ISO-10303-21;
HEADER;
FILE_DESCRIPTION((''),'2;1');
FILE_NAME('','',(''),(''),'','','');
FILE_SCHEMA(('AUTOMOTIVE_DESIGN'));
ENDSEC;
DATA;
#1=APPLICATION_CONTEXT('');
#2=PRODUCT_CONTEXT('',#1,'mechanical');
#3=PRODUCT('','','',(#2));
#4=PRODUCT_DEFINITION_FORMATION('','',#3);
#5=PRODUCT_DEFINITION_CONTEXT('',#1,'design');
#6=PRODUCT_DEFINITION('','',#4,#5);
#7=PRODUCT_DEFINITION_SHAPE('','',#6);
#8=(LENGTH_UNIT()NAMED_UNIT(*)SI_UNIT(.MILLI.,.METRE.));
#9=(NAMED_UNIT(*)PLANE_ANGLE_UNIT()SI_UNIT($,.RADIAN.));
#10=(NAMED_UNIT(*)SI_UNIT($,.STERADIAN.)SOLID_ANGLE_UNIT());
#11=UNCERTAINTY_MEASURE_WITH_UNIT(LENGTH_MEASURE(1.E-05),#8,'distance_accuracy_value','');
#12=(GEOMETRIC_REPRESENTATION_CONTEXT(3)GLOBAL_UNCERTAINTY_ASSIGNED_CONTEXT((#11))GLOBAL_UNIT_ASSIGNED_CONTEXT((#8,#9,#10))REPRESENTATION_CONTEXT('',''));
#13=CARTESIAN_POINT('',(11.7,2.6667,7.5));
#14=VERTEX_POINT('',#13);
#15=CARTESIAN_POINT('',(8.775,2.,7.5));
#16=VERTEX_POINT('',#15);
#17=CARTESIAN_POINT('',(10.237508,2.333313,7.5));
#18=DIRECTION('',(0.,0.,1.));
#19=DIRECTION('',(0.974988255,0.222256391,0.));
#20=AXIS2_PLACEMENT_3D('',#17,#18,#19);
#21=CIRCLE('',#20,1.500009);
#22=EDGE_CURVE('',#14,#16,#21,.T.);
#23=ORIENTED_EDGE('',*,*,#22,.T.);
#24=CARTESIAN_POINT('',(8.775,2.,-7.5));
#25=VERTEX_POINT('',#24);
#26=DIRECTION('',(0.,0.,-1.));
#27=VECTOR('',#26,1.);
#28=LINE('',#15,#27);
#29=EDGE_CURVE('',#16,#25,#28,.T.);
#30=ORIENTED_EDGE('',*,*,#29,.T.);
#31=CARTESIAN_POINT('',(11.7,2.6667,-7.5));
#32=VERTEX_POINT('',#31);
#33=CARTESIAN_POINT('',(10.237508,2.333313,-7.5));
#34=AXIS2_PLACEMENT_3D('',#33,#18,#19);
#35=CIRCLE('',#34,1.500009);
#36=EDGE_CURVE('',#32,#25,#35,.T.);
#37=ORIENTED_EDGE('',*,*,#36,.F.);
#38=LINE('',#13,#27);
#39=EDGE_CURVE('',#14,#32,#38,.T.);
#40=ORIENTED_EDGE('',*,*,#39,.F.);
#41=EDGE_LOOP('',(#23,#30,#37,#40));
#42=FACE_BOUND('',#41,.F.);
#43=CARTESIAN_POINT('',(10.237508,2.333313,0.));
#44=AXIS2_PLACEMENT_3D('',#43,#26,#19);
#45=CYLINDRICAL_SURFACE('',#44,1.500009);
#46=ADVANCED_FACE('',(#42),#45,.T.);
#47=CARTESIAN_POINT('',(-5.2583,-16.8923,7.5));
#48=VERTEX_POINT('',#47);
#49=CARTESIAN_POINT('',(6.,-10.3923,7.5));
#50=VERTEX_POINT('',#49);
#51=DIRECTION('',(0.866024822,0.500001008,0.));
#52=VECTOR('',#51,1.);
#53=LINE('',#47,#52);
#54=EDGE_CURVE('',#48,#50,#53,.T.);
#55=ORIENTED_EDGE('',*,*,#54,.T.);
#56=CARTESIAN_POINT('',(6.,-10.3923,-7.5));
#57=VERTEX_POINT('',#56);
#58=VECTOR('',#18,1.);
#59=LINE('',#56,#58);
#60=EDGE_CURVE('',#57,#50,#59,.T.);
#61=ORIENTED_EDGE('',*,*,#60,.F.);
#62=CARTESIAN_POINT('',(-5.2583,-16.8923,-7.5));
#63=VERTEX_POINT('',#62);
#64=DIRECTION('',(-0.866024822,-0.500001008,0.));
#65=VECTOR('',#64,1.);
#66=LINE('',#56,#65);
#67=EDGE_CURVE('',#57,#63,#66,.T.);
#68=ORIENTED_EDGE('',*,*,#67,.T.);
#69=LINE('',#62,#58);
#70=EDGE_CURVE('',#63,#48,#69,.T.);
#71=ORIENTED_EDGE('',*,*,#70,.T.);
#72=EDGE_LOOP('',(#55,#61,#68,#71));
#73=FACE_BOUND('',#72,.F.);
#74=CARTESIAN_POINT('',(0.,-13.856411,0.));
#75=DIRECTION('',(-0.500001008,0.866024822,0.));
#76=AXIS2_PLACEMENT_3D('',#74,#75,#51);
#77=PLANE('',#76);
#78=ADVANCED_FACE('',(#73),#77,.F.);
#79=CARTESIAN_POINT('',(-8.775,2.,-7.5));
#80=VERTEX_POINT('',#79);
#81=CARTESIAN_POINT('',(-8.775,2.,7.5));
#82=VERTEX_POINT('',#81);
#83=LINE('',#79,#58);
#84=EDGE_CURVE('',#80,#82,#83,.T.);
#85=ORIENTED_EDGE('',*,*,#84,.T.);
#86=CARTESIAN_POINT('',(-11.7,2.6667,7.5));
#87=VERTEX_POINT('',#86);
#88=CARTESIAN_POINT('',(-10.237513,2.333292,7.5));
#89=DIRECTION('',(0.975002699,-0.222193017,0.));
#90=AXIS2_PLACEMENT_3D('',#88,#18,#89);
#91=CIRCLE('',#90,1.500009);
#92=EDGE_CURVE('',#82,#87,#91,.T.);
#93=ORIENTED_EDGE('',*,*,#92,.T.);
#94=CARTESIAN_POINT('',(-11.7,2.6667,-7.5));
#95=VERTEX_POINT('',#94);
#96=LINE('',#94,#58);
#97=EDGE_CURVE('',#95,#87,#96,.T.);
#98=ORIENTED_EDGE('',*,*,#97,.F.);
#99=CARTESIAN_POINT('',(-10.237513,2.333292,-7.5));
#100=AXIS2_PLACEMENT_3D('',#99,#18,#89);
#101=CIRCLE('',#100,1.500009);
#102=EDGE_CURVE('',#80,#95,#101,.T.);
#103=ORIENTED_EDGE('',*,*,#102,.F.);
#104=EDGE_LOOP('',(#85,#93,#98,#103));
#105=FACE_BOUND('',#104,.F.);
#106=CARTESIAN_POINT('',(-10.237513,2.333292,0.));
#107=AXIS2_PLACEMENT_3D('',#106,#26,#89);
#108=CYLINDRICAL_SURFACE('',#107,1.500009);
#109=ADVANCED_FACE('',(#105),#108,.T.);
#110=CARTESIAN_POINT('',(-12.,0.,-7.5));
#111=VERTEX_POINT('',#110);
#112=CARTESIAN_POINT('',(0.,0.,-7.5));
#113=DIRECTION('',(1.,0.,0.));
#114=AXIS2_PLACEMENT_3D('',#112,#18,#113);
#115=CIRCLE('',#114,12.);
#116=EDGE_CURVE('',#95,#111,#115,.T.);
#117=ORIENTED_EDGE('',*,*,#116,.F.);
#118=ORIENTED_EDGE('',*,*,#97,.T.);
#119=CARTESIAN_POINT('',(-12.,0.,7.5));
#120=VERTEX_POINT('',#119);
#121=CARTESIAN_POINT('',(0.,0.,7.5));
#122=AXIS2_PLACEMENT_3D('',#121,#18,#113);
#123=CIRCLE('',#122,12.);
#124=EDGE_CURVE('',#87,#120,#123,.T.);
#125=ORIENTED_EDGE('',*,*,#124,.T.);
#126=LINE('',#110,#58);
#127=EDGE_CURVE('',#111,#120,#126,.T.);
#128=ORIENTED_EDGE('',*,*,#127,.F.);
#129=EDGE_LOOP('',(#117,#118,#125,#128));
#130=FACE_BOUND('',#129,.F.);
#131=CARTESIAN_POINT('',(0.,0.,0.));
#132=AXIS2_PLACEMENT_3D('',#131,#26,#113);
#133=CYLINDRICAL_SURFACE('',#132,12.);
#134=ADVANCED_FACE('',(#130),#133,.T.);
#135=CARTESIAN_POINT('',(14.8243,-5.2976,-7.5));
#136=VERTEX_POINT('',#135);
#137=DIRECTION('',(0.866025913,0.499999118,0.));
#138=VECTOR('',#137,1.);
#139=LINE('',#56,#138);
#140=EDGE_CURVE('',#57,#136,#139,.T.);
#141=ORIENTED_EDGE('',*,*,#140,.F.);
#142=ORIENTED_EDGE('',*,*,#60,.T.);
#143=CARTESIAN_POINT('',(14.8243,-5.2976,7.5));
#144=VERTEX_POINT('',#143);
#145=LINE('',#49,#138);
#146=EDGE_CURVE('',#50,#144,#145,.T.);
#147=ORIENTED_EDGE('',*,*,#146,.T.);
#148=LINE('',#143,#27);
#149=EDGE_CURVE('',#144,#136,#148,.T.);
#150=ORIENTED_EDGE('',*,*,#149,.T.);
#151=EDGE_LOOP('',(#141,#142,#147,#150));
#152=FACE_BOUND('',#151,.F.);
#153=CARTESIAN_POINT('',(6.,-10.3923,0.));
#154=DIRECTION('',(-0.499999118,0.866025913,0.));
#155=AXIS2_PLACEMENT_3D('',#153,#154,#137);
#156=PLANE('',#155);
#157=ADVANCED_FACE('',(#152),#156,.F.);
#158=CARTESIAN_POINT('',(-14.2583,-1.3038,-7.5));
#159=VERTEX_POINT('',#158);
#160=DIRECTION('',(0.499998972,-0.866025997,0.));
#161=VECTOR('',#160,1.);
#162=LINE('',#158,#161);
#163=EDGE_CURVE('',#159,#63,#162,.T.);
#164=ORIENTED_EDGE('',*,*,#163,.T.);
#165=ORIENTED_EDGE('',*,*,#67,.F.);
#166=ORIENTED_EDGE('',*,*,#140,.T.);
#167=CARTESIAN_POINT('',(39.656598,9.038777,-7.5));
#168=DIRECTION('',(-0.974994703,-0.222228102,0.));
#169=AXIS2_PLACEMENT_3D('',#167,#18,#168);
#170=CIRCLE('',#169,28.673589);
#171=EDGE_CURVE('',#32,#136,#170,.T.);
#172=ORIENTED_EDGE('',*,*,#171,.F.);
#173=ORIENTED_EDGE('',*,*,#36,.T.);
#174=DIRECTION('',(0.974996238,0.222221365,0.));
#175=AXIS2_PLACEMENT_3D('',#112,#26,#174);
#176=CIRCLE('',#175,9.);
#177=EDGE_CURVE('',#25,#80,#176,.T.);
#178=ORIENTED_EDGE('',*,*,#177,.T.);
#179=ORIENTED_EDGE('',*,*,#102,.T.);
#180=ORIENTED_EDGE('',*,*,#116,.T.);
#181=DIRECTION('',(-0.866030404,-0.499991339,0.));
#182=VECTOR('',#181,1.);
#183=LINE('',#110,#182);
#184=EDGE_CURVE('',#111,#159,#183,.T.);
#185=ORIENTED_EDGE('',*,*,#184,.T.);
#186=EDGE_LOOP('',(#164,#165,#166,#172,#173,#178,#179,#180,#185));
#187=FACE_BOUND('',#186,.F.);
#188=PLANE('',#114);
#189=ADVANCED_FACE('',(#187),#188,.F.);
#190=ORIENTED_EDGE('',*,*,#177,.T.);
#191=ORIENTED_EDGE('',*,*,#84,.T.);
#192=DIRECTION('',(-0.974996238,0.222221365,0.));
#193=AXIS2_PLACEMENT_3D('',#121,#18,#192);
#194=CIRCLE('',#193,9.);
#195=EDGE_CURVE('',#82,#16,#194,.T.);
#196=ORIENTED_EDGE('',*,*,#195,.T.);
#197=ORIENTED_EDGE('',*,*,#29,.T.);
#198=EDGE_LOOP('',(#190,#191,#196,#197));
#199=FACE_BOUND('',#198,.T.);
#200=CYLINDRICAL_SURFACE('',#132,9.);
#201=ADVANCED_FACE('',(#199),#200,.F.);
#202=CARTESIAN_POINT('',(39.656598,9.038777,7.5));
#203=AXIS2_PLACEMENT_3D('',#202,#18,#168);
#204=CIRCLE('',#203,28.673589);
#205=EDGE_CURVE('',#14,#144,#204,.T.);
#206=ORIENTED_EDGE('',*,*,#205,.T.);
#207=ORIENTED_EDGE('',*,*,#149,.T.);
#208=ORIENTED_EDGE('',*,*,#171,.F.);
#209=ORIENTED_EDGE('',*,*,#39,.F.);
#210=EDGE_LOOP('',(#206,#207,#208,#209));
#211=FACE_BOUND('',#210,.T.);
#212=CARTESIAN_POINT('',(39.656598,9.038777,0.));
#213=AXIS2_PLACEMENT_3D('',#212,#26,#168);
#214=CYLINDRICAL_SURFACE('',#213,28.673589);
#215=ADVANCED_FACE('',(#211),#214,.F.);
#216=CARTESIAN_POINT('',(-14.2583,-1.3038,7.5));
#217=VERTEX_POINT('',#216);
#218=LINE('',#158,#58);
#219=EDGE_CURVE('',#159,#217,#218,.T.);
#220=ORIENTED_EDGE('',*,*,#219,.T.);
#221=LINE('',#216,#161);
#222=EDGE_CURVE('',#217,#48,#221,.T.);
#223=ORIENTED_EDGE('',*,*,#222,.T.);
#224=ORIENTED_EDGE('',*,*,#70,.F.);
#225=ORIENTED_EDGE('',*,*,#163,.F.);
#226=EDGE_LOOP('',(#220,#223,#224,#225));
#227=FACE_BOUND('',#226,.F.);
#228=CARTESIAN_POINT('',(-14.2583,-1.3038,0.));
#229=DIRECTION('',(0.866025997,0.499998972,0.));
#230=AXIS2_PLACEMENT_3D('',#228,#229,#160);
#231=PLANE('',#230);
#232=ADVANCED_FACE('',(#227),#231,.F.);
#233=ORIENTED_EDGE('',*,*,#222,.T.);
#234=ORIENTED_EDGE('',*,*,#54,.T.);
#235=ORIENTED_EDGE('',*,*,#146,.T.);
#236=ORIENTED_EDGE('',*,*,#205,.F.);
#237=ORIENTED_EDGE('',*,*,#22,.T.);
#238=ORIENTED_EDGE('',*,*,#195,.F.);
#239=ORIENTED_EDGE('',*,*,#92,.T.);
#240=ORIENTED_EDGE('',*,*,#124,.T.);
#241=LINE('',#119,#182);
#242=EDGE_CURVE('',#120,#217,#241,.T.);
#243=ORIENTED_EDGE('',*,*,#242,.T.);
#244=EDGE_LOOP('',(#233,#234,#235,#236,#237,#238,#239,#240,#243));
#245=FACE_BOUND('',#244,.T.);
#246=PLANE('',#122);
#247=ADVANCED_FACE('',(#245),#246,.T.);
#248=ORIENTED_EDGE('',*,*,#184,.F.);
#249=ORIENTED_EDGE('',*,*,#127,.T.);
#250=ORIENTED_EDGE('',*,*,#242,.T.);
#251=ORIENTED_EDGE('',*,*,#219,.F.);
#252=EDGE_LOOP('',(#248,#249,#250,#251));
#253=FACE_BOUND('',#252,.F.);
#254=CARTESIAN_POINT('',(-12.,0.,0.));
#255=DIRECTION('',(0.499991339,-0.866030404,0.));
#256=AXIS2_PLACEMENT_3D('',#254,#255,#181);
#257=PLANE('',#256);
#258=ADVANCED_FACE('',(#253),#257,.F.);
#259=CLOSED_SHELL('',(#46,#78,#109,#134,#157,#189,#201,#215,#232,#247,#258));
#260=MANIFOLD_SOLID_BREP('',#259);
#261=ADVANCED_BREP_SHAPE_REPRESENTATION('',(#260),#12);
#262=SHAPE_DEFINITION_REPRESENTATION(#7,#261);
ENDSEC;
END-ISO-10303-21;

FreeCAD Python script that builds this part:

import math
import FreeCAD as App
import Part
import Sketcher
Q = App.Units.Quantity

doc = App.newDocument("Part")
body = doc.addObject("PartDesign::Body", "Body")

# Sketch on XY plane
sketch1 = body.newObject("Sketcher::SketchObject", "Sketch")
sketch1.AttachmentSupport = (doc.getObject("XY_Plane"), [""])
sketch1.MapMode = "FlatFace"
sketch1.addGeometry([
    Part.ArcOfCircle(Part.Circle(App.Vector(0, 0, 0), App.Vector(0, 0, 1), 9), math.radians(167.160462), math.radians(372.839538)),  # 0
    Part.ArcOfCircle(Part.Circle(App.Vector(-10.2375, 2.3333, 0), App.Vector(0, 0, 1), 1.499998), math.radians(-12.838297), math.radians(167.157979)),  # 1
    Part.ArcOfCircle(Part.Circle(App.Vector(0, 0, 0), App.Vector(0, 0, 1), 12), math.radians(167.160307), math.radians(180)),  # 2
    Part.LineSegment(App.Vector(-12, 0, 0), App.Vector(-14.2583, -1.3038, 0)),  # 3
    Part.LineSegment(App.Vector(-14.2583, -1.3038, 0), App.Vector(-5.2583, -16.8923, 0)),  # 4
    Part.LineSegment(App.Vector(-5.2583, -16.8923, 0), App.Vector(6, -10.3923, 0)),  # 5
    Part.LineSegment(App.Vector(6, -10.3923, 0), App.Vector(14.8243, -5.2976, 0)),  # 6
    Part.ArcOfCircle(Part.Circle(App.Vector(39.656598, 9.038777, 0), App.Vector(0, 0, 1), 28.673589), math.radians(-167.160066), math.radians(-150.000963)),  # 7
    Part.ArcOfCircle(Part.Circle(App.Vector(10.2375, 2.3333, 0), App.Vector(0, 0, 1), 1.500021), math.radians(12.842021), math.radians(192.838297)),  # 8
], False)
sketch1.addConstraint([
    Sketcher.Constraint("Tangent", 0, 1, 1, 1),
    Sketcher.Constraint("Tangent", 1, 2, 2, 1),
    Sketcher.Constraint("Coincident", 2, 2, 3, 1),
    Sketcher.Constraint("Coincident", 3, 2, 4, 1),
    Sketcher.Constraint("Coincident", 4, 2, 5, 1),
    Sketcher.Constraint("Coincident", 5, 2, 6, 1),
    Sketcher.Constraint("Coincident", 6, 2, 7, 2),
    Sketcher.Constraint("Tangent", 7, 1, 8, 1),
    Sketcher.Constraint("Tangent", 8, 2, 0, 2),
    Sketcher.Constraint("Coincident", 0, 3, -1, 1),
    Sketcher.Constraint("Coincident", 2, 3, -1, 1),
    Sketcher.Constraint("Equal", 1, 8),
    Sketcher.Constraint("PointOnObject", 2, 2, -1),
    Sketcher.Constraint("Perpendicular", 3, 4),
    Sketcher.Constraint("Perpendicular", 4, 5),
    Sketcher.Constraint("Parallel", 5, 6),
    Sketcher.Constraint("Horizontal", 1, 3, 8, 3),
    Sketcher.Constraint("Horizontal", 1, 2, 7, 1),
    Sketcher.Constraint("Radius", 0, 9.0),
    Sketcher.Constraint("Radius", 1, 1.5),
    Sketcher.Constraint("Distance", 4, 18.0),
    Sketcher.Constraint("Distance", 5, 13.0),
    Sketcher.Constraint("DistanceY", -1, 1, 0, 1, 2.0),
    Sketcher.Constraint("Angle", 3, Q("-150.0006 deg")),
    Sketcher.Constraint("DistanceX", -1, 1, 5, 2, 6.0),
    Sketcher.Constraint("Radius", 7, 28.6736),
])
pad1 = body.newObject("PartDesign::Pad", "Pad")
pad1.Profile = sketch1
pad1.Length = 15
pad1.Midplane = True

doc.recompute()
